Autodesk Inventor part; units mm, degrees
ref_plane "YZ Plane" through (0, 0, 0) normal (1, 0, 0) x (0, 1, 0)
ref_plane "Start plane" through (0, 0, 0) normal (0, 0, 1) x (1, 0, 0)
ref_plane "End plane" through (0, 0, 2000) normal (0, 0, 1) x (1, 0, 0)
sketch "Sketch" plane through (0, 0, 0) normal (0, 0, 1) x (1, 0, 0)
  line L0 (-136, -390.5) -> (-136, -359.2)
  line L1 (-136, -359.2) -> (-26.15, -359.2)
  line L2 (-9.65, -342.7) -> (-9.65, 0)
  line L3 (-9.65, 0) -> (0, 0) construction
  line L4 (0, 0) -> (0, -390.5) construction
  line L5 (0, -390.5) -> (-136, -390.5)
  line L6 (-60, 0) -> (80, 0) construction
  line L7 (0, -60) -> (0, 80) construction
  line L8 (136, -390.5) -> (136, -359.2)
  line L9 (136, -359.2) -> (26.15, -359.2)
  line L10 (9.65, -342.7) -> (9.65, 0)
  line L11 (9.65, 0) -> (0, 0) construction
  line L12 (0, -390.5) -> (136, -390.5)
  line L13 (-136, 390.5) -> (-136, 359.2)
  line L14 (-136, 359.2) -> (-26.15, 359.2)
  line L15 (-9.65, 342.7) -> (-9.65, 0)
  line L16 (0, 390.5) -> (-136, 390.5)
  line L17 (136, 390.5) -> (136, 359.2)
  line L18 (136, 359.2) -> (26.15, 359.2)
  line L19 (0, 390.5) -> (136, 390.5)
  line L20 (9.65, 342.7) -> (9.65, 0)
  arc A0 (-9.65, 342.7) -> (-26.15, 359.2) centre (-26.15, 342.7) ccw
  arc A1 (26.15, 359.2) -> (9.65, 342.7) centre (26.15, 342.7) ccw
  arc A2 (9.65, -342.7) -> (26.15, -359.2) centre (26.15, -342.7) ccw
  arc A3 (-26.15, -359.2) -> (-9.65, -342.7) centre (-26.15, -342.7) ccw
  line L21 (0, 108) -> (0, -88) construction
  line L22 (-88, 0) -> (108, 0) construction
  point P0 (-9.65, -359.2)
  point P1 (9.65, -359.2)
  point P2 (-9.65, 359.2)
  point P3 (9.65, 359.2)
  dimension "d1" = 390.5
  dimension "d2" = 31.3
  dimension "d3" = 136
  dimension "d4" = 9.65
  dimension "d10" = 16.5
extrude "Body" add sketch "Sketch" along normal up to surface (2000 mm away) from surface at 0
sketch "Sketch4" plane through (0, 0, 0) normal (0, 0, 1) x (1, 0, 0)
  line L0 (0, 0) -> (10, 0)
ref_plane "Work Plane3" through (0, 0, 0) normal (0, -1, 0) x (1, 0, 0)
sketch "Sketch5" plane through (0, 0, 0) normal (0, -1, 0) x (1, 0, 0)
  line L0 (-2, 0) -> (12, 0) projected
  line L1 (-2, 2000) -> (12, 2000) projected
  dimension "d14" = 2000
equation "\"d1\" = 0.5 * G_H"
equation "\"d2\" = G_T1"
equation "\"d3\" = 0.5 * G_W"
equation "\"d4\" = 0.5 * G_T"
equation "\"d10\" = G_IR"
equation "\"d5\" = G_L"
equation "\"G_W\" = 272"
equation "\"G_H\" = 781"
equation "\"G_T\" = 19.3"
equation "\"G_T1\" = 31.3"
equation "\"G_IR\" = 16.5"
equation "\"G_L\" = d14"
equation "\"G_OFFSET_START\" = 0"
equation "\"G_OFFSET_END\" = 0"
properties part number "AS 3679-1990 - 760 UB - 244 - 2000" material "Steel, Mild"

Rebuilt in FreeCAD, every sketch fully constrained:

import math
import FreeCAD as App
import Part
import Sketcher

V = App.Vector

doc = App.newDocument("Part")
body = doc.addObject("PartDesign::Body", "Body")

# Sketch on XY plane
sketch1 = doc.addObject("Sketcher::SketchObject", "Sketch")
body.addObject(sketch1)
sketch1.AttachmentSupport = (doc.XY_Plane, [""])
sketch1.MapMode = "FlatFace"
sketch1.addGeometry([
    Part.LineSegment(V(-136, -359.2, 0), V(-136, -390.5, 0)),  # 0
    Part.LineSegment(V(-136, -390.5, 0), V(136, -390.5, 0)),  # 1
    Part.LineSegment(V(136, -390.5, 0), V(136, -359.2, 0)),  # 2
    Part.LineSegment(V(136, -359.2, 0), V(26.15, -359.2, 0)),  # 3
    Part.ArcOfCircle(Part.Circle(V(26.15, -342.7, 0), V(0, 0, 1), 16.5), math.radians(180), math.radians(270)),  # 4
    Part.LineSegment(V(9.65, -342.7, 0), V(9.65, 342.7, 0)),  # 5
    Part.ArcOfCircle(Part.Circle(V(26.15, 342.7, 0), V(0, 0, 1), 16.5), math.radians(90), math.radians(180)),  # 6
    Part.LineSegment(V(26.15, 359.2, 0), V(136, 359.2, 0)),  # 7
    Part.LineSegment(V(136, 359.2, 0), V(136, 390.5, 0)),  # 8
    Part.LineSegment(V(136, 390.5, 0), V(-136, 390.5, 0)),  # 9
    Part.LineSegment(V(-136, 390.5, 0), V(-136, 359.2, 0)),  # 10
    Part.LineSegment(V(-136, 359.2, 0), V(-26.15, 359.2, 0)),  # 11
    Part.ArcOfCircle(Part.Circle(V(-26.15, 342.7, 0), V(0, 0, 1), 16.5), math.radians(0), math.radians(90)),  # 12
    Part.LineSegment(V(-9.65, 342.7, 0), V(-9.65, -342.7, 0)),  # 13
    Part.ArcOfCircle(Part.Circle(V(-26.15, -342.7, 0), V(0, 0, 1), 16.5), math.radians(-90), math.radians(0)),  # 14
    Part.LineSegment(V(-26.15, -359.2, 0), V(-136, -359.2, 0)),  # 15
], False)
sketch1.addConstraint([
    Sketcher.Constraint("Coincident", 0, 2, 1, 1),
    Sketcher.Constraint("Coincident", 1, 2, 2, 1),
    Sketcher.Constraint("Coincident", 2, 2, 3, 1),
    Sketcher.Constraint("Tangent", 3, 2, 4, 2),
    Sketcher.Constraint("Tangent", 4, 1, 5, 1),
    Sketcher.Constraint("Tangent", 5, 2, 6, 2),
    Sketcher.Constraint("Tangent", 6, 1, 7, 1),
    Sketcher.Constraint("Coincident", 7, 2, 8, 1),
    Sketcher.Constraint("Coincident", 8, 2, 9, 1),
    Sketcher.Constraint("Coincident", 9, 2, 10, 1),
    Sketcher.Constraint("Coincident", 10, 2, 11, 1),
    Sketcher.Constraint("Tangent", 11, 2, 12, 2),
    Sketcher.Constraint("Tangent", 12, 1, 13, 1),
    Sketcher.Constraint("Tangent", 13, 2, 14, 2),
    Sketcher.Constraint("Tangent", 14, 1, 15, 1),
    Sketcher.Constraint("Coincident", 15, 2, 0, 1),
    Sketcher.Constraint("Vertical", 0),
    Sketcher.Constraint("Horizontal", 1),
    Sketcher.Constraint("Vertical", 2),
    Sketcher.Constraint("Horizontal", 3),
    Sketcher.Constraint("Vertical", 5),
    Sketcher.Constraint("Horizontal", 7),
    Sketcher.Constraint("Vertical", 8),
    Sketcher.Constraint("Horizontal", 9),
    Sketcher.Constraint("Vertical", 10),
    Sketcher.Constraint("Horizontal", 11),
    Sketcher.Constraint("Vertical", 13),
    Sketcher.Constraint("Horizontal", 15),
    Sketcher.Constraint("Equal", 4, 6),
    Sketcher.Constraint("Equal", 6, 12),
    Sketcher.Constraint("Equal", 12, 14),
    Sketcher.Constraint("Symmetric", 4, 3, 12, 3, -1, 1),
    Sketcher.Constraint("Symmetric", 0, 2, 8, 2, -1, 1),
    Sketcher.Constraint("Symmetric", 7, 2, 10, 2, -2),
    Sketcher.Constraint("Symmetric", 2, 2, 15, 2, -2),
    Sketcher.Constraint("Radius", 4, 16.5),
    Sketcher.Constraint("DistanceY", 0, 2, 0, 1, 31.3),
    Sketcher.Constraint("DistanceX", 0, 2, -1, 1, 136.0),
    Sketcher.Constraint("DistanceY", 0, 2, -1, 1, 390.5),
    Sketcher.Constraint("DistanceX", -1, 1, 4, 1, 9.65),
])
pad1 = doc.addObject("PartDesign::Pad", "Pad")
body.addObject(pad1)
pad1.Profile = sketch1
pad1.Length = 2000

doc.recompute()
